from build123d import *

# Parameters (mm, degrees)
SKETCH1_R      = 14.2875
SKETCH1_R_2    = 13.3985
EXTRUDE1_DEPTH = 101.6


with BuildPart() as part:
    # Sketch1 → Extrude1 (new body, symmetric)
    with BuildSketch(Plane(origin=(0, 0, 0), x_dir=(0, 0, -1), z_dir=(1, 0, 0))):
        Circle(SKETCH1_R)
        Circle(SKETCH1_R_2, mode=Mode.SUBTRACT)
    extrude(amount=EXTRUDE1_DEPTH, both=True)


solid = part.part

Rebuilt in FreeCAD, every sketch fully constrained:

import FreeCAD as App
import Part
import Sketcher

V = App.Vector
Q = App.Units.Quantity

doc = App.newDocument("Part")
body = doc.addObject("PartDesign::Body", "Body")

# Sketch on YZ plane
sketch1 = doc.addObject("Sketcher::SketchObject", "Sketch")
body.addObject(sketch1)
sketch1.AttachmentSupport = (doc.YZ_Plane, [""])
sketch1.MapMode = "FlatFace"
sketch1.addGeometry([
    Part.Circle(V(0, 0, 0), V(0, 0, 1), 14),
    Part.Circle(V(0, 0, 0), V(0, 0, 1), 13),
], False)
sketch1.addConstraint([
    Sketcher.Constraint("Coincident", 0, 3, -1, 1),
    Sketcher.Constraint("Coincident", 1, 3, -1, 1),
    Sketcher.Constraint("Diameter", 0, Q("1.125 in")),
    Sketcher.Constraint("Diameter", 1, Q("1.055 in")),
])
pad1 = doc.addObject("PartDesign::Pad", "Pad")
body.addObject(pad1)
pad1.Profile = sketch1
pad1.Length = Q("8 in")
pad1.Midplane = True

doc.recompute()
